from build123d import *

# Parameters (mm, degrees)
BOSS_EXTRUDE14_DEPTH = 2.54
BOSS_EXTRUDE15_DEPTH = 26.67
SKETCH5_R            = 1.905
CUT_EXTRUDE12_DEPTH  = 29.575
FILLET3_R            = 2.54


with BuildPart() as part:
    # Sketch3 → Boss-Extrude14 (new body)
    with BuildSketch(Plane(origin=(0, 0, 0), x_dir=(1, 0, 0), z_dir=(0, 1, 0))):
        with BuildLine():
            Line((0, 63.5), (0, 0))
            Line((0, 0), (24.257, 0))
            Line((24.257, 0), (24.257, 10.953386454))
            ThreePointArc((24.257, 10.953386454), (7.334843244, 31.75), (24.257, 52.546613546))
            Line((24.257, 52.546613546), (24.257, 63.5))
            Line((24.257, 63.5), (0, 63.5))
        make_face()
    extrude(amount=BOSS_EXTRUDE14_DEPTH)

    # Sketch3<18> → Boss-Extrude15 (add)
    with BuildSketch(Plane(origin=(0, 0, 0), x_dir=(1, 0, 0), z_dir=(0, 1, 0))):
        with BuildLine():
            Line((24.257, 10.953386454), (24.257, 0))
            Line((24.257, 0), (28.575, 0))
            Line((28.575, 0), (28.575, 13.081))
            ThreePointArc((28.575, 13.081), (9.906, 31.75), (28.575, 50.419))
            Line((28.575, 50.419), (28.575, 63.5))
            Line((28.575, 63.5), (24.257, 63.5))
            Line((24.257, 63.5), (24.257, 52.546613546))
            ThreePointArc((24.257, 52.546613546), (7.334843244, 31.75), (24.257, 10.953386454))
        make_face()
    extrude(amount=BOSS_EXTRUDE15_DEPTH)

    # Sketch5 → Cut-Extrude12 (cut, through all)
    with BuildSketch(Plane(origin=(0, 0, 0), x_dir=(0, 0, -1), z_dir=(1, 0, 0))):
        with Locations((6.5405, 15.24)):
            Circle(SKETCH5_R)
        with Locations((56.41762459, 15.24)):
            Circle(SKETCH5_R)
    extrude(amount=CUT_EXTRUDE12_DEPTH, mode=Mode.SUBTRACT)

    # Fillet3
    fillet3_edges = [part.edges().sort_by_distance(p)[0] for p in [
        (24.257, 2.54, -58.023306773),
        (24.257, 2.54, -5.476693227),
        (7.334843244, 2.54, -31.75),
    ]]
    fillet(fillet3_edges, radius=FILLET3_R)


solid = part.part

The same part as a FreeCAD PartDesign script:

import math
import FreeCAD as App
import Part
import Sketcher
from FreeCAD import Vector
Q = App.Units.Quantity


def edges_at(feature, points):
    """Names of the edges that pass closest to the given points."""
    edges = feature.Shape.Edges
    near = lambda p: min(range(len(edges)), key=lambda i: edges[i].distToShape(Part.Vertex(*p))[0])
    return sorted({f"Edge{near(p) + 1}" for p in points})

doc = App.newDocument("Part")
body = doc.addObject("PartDesign::Body", "Body")

sketch1 = body.newObject("Sketcher::SketchObject", "Sketch")
sketch1.AttachmentSupport = (doc.getObject("XZ_Plane"), [""])
sketch1.MapMode = "FlatFace"
sketch1.addGeometry(Part.LineSegment(Vector(0, -63.5, 0), Vector(0, 0, 0)), False)
sketch1.addGeometry(Part.LineSegment(Vector(0, 0, 0), Vector(24.257, 0, 0)), False)
sketch1.addGeometry(Part.LineSegment(Vector(24.257, 0, 0), Vector(24.257, -10.953386, 0)), False)
sketch1.addGeometry(Part.ArcOfCircle(Part.Circle(Vector(28.575, -31.75, 0), Vector(0, 0, 1), 21.240157), math.radians(101.729659), math.radians(258.270341)), False)
sketch1.addGeometry(Part.LineSegment(Vector(24.257, -52.546614, 0), Vector(24.257, -63.5, 0)), False)
sketch1.addGeometry(Part.LineSegment(Vector(24.257, -63.5, 0), Vector(0, -63.5, 0)), False)
sketch1.addConstraint(Sketcher.Constraint("Coincident", 0, 2, 1, 1))
sketch1.addConstraint(Sketcher.Constraint("Coincident", 1, 2, 2, 1))
sketch1.addConstraint(Sketcher.Constraint("Coincident", 2, 2, 3, 1))
sketch1.addConstraint(Sketcher.Constraint("Coincident", 3, 2, 4, 1))
sketch1.addConstraint(Sketcher.Constraint("Coincident", 4, 2, 5, 1))
sketch1.addConstraint(Sketcher.Constraint("Coincident", 5, 2, 0, 1))
sketch1.addConstraint(Sketcher.Constraint("Vertical", 0))
sketch1.addConstraint(Sketcher.Constraint("Horizontal", 1))
sketch1.addConstraint(Sketcher.Constraint("Vertical", 2))
sketch1.addConstraint(Sketcher.Constraint("Vertical", 4))
sketch1.addConstraint(Sketcher.Constraint("Horizontal", 5))
sketch1.addConstraint(Sketcher.Constraint("Coincident", 0, 2, -1, 1))
sketch1.addConstraint(Sketcher.Constraint("Vertical", 2, 2, 3, 2))
sketch1.addConstraint(Sketcher.Constraint("Equal", 2, 4))
sketch1.addConstraint(Sketcher.Constraint("DistanceY", 0, 1, 0, 2, Q("2.5 in")))
sketch1.addConstraint(Sketcher.Constraint("DistanceX", 1, 1, 1, 2, Q("0.955 in")))
sketch1.addConstraint(Sketcher.Constraint("DistanceX", 1, 2, 3, 3, Q("0.17 in")))
sketch1.addConstraint(Sketcher.Constraint("Radius", 3, 21.240157))
pad1 = body.newObject("PartDesign::Pad", "Pad")
pad1.Profile = sketch1
pad1.Length = Q("0.1 in")
pad1.Reversed = True

sketch2 = body.newObject("Sketcher::SketchObject", "Sketch001")
sketch2.AttachmentSupport = (doc.getObject("XZ_Plane"), [""])
sketch2.MapMode = "FlatFace"
sketch2.addGeometry(Part.LineSegment(Vector(24.257, -10.953386, 0), Vector(24.257, 0, 0)), False)
sketch2.addGeometry(Part.LineSegment(Vector(24.257, 0, 0), Vector(28.575, 0, 0)), False)
sketch2.addGeometry(Part.LineSegment(Vector(28.575, 0, 0), Vector(28.575, -13.081, 0)), False)
sketch2.addGeometry(Part.ArcOfCircle(Part.Circle(Vector(28.575, -31.75, 0), Vector(0, 0, 1), 18.669), math.radians(90), math.radians(270)), False)
sketch2.addGeometry(Part.LineSegment(Vector(28.575, -50.419, 0), Vector(28.575, -63.5, 0)), False)
sketch2.addGeometry(Part.LineSegment(Vector(28.575, -63.5, 0), Vector(24.257, -63.5, 0)), False)
sketch2.addGeometry(Part.LineSegment(Vector(24.257, -63.5, 0), Vector(24.257, -52.546614, 0)), False)
sketch2.addGeometry(Part.ArcOfCircle(Part.Circle(Vector(28.575, -31.75, 0), Vector(0, 0, 1), 21.240157), math.radians(101.729659), math.radians(258.270341)), False)
sketch2.addConstraint(Sketcher.Constraint("Coincident", 0, 2, 1, 1))
sketch2.addConstraint(Sketcher.Constraint("Coincident", 1, 2, 2, 1))
sketch2.addConstraint(Sketcher.Constraint("Coincident", 2, 2, 3, 1))
sketch2.addConstraint(Sketcher.Constraint("Coincident", 3, 2, 4, 1))
sketch2.addConstraint(Sketcher.Constraint("Coincident", 4, 2, 5, 1))
sketch2.addConstraint(Sketcher.Constraint("Coincident", 5, 2, 6, 1))
sketch2.addConstraint(Sketcher.Constraint("Coincident", 6, 2, 7, 2))
sketch2.addConstraint(Sketcher.Constraint("Coincident", 7, 1, 0, 1))
sketch2.addConstraint(Sketcher.Constraint("Vertical", 0))
sketch2.addConstraint(Sketcher.Constraint("Horizontal", 1))
sketch2.addConstraint(Sketcher.Constraint("Vertical", 2))
sketch2.addConstraint(Sketcher.Constraint("Vertical", 4))
sketch2.addConstraint(Sketcher.Constraint("Horizontal", 5))
sketch2.addConstraint(Sketcher.Constraint("Vertical", 6))
sketch2.addConstraint(Sketcher.Constraint("Coincident", 7, 3, 3, 3))
sketch2.addConstraint(Sketcher.Constraint("PointOnObject", 0, 2, -1))
sketch2.addConstraint(Sketcher.Constraint("Vertical", 7, 3, 1, 2))
sketch2.addConstraint(Sketcher.Constraint("Vertical", 2, 2, 3, 2))
sketch2.addConstraint(Sketcher.Constraint("Vertical", 0, 2, 5, 2))
sketch2.addConstraint(Sketcher.Constraint("Equal", 2, 4))
sketch2.addConstraint(Sketcher.Constraint("Radius", 3, Q("0.735 in")))
sketch2.addConstraint(Sketcher.Constraint("DistanceX", 1, 1, 1, 2, Q("0.17 in")))
sketch2.addConstraint(Sketcher.Constraint("DistanceY", 4, 2, -1, 1, Q("2.5 in")))
sketch2.addConstraint(Sketcher.Constraint("DistanceX", -1, 1, 3, 3, Q("1.125 in")))
sketch2.addConstraint(Sketcher.Constraint("Radius", 7, 21.240157))
pad2 = body.newObject("PartDesign::Pad", "Pad001")
pad2.Profile = sketch2
pad2.Length = Q("1.05 in")
pad2.Reversed = True

sketch3 = body.newObject("Sketcher::SketchObject", "Sketch002")
sketch3.AttachmentSupport = (doc.getObject("YZ_Plane"), [""])
sketch3.MapMode = "FlatFace"
sketch3.addGeometry(Part.Circle(Vector(15.24, -6.5405, 0), Vector(0, 0, 1), 1.905), False)
sketch3.addGeometry(Part.Circle(Vector(15.24, -56.417625, 0), Vector(0, 0, 1), 1.905), False)
sketch3.addConstraint(Sketcher.Constraint("Equal", 0, 1))
sketch3.addConstraint(Sketcher.Constraint("Vertical", 0, 3, 1, 3))
sketch3.addConstraint(Sketcher.Constraint("Diameter", 0, Q("0.15 in")))
sketch3.addConstraint(Sketcher.Constraint("DistanceX", -1, 1, 0, 3, Q("0.6 in")))
sketch3.addConstraint(Sketcher.Constraint("DistanceY", 0, 3, -1, 1, Q("0.2575 in")))
sketch3.addConstraint(Sketcher.Constraint("DistanceY", 1, 3, -1, 1, 56.417625))
pocket1 = body.newObject("PartDesign::Pocket", "Pocket")
pocket1.Profile = sketch3
pocket1.Type = "ThroughAll"
pocket1.Reversed = True
doc.recompute()

fillet = body.newObject("PartDesign::Fillet", "Fillet")
fillet.Base = (pocket1, edges_at(pocket1, [(24.257, 2.54, -58.023), (24.257, 2.54, -5.477), (7.335, 2.54, -31.75)]))
fillet.Radius = Q("0.1 in")

doc.recompute()
